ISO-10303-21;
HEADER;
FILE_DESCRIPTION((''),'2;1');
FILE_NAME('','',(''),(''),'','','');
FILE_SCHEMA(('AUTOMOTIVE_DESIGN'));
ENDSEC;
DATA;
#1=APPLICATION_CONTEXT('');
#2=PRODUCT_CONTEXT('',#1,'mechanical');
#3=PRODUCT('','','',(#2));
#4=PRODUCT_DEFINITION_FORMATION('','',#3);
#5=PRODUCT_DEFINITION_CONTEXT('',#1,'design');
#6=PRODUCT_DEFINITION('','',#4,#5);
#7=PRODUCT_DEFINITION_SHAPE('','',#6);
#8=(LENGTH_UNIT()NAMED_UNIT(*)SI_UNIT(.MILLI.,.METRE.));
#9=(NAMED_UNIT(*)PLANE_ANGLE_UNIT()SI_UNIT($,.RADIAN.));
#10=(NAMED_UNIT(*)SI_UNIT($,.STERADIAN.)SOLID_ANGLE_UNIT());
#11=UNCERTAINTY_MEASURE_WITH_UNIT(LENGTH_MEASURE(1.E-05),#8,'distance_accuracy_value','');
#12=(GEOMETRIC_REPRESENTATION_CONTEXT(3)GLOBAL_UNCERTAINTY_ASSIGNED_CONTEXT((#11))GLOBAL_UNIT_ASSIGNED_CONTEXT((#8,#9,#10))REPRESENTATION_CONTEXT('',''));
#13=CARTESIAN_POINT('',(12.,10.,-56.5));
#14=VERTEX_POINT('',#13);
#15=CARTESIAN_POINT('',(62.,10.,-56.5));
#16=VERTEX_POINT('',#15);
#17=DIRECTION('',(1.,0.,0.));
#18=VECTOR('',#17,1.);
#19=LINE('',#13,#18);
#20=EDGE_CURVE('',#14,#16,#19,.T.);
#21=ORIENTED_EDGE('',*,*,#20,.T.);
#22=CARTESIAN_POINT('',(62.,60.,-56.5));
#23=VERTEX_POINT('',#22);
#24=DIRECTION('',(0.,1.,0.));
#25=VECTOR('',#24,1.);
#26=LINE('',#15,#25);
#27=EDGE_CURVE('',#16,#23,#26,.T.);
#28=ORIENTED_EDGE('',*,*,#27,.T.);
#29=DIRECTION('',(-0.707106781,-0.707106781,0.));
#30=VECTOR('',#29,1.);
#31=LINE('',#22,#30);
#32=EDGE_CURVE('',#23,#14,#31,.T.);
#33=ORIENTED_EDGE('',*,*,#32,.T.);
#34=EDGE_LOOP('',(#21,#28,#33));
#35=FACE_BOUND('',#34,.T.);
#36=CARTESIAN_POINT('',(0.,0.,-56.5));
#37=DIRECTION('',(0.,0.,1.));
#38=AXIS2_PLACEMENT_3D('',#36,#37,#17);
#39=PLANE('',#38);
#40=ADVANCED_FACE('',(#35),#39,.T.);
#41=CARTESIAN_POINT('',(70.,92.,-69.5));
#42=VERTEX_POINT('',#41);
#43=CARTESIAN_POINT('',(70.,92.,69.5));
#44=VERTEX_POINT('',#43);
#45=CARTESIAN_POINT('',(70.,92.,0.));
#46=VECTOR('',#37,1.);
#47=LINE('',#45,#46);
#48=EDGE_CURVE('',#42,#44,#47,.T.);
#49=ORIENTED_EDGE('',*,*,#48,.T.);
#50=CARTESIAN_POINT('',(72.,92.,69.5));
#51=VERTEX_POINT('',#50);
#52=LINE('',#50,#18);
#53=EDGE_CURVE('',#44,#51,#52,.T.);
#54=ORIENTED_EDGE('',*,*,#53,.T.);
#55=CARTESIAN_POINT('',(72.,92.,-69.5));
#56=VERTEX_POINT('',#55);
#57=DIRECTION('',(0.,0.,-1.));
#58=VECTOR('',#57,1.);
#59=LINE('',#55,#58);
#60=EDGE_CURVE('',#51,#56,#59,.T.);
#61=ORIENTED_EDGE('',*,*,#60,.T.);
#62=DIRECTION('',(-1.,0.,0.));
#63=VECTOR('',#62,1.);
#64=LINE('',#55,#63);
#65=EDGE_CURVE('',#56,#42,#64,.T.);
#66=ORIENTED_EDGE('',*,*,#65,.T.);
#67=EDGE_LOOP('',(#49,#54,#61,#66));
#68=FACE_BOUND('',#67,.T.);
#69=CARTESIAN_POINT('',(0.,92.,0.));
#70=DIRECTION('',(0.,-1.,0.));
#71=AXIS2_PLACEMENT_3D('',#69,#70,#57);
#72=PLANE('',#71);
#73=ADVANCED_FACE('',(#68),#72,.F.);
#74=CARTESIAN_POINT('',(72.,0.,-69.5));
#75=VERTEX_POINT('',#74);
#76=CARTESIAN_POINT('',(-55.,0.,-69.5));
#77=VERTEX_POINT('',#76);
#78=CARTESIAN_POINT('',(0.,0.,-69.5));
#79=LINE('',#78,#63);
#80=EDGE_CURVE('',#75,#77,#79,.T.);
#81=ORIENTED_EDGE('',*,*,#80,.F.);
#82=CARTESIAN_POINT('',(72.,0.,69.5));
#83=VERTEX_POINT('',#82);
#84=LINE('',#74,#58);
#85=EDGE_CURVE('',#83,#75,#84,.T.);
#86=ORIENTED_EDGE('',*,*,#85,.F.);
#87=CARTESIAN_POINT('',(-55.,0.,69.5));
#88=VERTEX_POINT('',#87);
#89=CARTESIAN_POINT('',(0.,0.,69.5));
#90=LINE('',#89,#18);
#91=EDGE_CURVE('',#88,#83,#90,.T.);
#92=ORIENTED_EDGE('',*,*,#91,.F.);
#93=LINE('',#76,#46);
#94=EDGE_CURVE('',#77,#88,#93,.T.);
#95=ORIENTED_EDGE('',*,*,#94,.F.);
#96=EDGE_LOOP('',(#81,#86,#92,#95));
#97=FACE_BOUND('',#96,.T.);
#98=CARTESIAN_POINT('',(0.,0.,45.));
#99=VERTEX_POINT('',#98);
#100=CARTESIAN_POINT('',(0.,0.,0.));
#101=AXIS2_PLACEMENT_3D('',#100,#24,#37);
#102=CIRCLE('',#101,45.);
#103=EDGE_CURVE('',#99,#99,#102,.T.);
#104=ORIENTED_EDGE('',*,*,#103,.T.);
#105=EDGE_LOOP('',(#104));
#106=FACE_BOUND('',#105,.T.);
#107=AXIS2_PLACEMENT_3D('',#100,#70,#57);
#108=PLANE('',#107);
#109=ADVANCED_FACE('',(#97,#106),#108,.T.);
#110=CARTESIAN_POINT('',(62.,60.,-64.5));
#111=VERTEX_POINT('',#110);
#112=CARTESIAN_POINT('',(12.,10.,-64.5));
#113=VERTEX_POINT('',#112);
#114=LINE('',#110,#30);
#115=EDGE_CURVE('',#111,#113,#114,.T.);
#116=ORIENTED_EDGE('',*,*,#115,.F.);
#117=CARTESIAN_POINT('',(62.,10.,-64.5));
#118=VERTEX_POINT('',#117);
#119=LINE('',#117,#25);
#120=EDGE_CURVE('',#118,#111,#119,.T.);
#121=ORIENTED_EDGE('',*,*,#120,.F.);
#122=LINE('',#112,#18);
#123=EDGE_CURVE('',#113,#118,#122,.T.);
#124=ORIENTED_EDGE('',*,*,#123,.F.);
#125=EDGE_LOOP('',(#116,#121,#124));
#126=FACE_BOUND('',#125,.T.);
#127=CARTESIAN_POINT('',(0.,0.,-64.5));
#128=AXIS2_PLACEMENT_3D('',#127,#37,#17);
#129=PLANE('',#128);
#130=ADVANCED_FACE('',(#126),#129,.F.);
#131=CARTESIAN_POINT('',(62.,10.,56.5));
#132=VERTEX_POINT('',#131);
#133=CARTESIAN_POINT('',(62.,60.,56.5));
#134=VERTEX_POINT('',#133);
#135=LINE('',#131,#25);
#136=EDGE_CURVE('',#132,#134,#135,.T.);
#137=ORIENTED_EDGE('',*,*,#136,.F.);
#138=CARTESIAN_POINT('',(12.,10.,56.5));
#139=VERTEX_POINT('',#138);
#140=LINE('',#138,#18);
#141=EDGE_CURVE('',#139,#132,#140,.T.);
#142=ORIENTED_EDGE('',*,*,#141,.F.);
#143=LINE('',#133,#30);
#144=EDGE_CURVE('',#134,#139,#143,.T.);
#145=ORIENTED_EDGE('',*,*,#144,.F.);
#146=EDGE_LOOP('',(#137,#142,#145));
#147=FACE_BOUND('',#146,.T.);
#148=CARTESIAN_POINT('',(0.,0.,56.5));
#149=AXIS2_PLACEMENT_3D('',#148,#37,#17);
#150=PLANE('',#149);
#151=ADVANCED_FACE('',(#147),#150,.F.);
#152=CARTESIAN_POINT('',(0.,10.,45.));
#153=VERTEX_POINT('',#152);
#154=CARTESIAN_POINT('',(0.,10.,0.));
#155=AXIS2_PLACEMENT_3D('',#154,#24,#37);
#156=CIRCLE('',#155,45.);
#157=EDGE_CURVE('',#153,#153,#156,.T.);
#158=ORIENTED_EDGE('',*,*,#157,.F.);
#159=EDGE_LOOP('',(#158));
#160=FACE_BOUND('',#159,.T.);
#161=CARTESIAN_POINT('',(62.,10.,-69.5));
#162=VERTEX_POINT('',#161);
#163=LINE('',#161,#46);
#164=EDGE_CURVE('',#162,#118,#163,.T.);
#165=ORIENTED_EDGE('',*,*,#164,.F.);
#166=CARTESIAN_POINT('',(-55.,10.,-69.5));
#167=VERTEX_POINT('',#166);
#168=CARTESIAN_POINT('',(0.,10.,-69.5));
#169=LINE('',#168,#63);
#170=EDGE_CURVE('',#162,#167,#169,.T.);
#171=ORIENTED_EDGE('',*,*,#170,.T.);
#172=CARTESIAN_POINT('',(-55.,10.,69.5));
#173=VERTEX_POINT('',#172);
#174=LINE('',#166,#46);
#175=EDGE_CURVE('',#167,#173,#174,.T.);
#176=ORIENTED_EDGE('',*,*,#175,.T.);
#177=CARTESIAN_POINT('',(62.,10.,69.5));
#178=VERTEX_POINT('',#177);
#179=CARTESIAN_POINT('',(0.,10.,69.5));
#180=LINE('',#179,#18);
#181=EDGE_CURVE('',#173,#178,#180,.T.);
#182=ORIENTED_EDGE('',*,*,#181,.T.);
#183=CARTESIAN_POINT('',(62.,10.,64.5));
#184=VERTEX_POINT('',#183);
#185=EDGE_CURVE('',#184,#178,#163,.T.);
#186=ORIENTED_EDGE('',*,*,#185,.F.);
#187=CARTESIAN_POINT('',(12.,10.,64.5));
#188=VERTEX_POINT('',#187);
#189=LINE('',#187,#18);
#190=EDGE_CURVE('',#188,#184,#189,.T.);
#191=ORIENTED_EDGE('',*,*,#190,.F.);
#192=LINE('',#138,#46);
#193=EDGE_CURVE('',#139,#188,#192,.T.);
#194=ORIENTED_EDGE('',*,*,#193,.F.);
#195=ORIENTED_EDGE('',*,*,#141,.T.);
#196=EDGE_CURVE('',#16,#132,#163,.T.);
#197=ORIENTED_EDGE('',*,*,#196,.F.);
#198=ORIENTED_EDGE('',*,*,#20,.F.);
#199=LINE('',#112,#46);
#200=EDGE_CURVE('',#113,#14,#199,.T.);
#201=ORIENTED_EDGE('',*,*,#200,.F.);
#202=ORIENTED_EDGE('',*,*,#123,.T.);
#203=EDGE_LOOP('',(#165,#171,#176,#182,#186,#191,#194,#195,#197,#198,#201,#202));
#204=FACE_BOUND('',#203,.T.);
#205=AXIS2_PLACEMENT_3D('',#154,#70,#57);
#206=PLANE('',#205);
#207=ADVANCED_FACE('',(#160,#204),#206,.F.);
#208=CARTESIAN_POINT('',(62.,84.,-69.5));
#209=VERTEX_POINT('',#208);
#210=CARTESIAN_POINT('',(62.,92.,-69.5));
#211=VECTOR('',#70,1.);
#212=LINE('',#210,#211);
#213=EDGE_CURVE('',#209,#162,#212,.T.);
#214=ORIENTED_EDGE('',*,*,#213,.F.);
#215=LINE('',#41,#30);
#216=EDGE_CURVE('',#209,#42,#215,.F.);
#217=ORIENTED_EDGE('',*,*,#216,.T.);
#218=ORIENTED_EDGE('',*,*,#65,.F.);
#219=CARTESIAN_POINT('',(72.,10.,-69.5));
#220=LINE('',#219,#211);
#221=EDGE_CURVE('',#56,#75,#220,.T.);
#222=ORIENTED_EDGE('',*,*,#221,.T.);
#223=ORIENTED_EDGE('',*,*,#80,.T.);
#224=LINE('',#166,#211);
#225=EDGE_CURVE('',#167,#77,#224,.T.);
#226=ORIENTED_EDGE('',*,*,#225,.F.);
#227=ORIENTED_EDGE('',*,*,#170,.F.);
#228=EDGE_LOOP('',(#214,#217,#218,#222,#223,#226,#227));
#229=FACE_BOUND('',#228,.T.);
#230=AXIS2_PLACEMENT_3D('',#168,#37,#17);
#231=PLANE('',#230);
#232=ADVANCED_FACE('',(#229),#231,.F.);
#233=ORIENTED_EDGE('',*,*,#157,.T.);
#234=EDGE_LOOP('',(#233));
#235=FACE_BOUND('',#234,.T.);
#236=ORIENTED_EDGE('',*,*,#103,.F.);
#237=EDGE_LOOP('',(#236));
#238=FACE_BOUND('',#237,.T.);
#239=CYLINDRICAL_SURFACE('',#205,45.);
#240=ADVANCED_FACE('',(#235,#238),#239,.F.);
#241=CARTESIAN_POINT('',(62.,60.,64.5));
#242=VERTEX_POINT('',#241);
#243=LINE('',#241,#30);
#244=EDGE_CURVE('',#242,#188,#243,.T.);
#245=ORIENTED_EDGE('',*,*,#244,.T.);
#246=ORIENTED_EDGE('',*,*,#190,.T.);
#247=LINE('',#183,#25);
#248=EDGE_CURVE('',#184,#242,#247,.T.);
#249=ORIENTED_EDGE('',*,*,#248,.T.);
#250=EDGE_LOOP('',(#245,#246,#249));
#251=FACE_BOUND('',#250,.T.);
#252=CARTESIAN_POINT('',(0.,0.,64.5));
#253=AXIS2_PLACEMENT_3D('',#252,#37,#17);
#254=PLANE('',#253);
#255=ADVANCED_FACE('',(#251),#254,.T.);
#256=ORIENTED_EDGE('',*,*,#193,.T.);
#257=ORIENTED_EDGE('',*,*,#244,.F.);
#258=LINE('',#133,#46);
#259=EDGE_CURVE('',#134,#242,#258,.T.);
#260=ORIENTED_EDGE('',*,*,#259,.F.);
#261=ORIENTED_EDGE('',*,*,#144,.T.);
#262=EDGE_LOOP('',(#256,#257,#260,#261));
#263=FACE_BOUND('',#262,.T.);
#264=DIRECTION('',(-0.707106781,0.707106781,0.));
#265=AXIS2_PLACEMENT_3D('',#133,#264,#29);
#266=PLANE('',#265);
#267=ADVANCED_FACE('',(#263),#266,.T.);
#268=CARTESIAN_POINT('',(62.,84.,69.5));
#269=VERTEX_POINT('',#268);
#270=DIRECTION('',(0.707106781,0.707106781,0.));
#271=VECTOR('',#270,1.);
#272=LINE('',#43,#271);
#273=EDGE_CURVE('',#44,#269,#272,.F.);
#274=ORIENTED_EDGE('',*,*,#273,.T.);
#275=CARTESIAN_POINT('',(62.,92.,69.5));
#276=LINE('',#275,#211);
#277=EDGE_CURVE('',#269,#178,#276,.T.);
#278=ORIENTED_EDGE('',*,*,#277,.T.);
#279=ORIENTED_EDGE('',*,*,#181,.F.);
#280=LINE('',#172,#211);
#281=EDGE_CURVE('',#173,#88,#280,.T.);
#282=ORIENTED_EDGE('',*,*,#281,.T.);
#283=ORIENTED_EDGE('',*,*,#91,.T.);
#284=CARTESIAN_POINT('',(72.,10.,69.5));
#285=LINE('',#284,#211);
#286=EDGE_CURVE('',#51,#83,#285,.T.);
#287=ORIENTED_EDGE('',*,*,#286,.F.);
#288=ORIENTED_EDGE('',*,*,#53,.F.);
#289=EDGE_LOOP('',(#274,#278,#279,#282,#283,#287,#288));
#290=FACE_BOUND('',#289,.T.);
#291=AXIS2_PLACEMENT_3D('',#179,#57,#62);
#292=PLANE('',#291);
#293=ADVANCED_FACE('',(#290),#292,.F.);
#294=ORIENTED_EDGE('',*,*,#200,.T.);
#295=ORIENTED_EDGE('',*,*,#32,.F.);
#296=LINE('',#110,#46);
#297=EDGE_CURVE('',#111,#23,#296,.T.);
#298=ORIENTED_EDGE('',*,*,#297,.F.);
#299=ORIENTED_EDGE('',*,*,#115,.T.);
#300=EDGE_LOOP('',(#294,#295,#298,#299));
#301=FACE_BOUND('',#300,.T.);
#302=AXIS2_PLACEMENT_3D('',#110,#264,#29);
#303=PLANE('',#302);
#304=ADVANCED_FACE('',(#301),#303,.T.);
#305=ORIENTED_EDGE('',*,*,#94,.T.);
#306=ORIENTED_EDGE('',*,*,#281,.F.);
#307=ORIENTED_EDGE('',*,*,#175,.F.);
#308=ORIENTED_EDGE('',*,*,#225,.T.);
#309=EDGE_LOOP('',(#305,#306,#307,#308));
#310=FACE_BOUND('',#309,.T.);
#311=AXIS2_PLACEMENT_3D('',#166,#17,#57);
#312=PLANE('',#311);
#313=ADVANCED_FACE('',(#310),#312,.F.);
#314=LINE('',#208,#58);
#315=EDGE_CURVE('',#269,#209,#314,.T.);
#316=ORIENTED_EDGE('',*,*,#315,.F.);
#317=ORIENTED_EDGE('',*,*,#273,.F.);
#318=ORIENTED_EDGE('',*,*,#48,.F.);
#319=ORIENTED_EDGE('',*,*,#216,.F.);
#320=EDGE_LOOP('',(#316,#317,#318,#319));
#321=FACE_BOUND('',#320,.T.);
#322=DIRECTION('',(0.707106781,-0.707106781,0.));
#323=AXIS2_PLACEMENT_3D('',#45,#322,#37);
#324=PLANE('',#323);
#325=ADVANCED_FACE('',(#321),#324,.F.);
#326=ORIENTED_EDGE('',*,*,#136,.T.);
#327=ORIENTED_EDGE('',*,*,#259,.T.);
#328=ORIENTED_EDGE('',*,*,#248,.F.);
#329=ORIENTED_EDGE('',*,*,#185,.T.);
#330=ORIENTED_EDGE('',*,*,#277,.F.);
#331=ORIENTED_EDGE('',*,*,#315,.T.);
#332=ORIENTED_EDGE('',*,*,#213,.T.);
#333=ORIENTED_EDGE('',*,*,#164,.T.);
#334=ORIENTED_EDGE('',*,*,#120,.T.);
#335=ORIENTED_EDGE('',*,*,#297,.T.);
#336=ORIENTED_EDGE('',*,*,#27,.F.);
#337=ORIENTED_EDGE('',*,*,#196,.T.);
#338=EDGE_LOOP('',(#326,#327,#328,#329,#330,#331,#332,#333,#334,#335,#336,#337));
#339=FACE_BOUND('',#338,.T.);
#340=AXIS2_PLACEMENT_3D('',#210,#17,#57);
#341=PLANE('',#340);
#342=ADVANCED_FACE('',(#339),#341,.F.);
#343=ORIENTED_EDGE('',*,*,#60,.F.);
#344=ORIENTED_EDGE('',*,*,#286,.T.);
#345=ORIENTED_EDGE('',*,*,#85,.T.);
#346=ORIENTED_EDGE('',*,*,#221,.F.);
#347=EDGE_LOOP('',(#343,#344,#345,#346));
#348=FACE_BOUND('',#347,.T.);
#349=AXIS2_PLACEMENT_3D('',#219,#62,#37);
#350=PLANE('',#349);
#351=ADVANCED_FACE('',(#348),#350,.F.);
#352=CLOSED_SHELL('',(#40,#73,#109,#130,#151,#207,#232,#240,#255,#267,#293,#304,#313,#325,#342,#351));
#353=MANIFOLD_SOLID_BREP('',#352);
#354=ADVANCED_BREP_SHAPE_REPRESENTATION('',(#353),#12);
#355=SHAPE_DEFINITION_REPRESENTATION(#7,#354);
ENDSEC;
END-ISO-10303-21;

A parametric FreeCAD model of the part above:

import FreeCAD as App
import Part
import Sketcher

V = App.Vector


def edges_at(feature, points):
    """Names of the edges that pass closest to the given points."""
    edges = feature.Shape.Edges
    near = lambda p: min(range(len(edges)), key=lambda i: edges[i].distToShape(Part.Vertex(*p))[0])
    return sorted({f"Edge{near(p) + 1}" for p in points})

doc = App.newDocument("Part")
params = doc.addObject("Spreadsheet::Sheet", "Params")
for row, (alias, value) in enumerate([
    ("sketch1_diameter", "90 mm"),
    ("sketch1_width", "127 mm"),
    ("sketch1_height", "139 mm"),
    ("pad1_length", "10 mm"),
    ("sketch2_width", "10 mm"),
    ("sketch2_height", "139 mm"),
    ("pad2_length", "82 mm"),
    ("chamfer_size", "8 mm"),
    ("sketch3_width", "50 mm"),
    ("pad3_length", "8 mm"),
    ("linearpattern_pitch", "121 mm"),
], start=1):
    params.set(f"A{row}", alias)
    params.set(f"B{row}", "=" + value)
    params.setAlias(f"B{row}", alias)

body = doc.addObject("PartDesign::Body", "Body")

# Sketch on XZ plane
sketch1 = body.newObject("Sketcher::SketchObject", "Sketch")
sketch1.AttachmentSupport = (doc.getObject("XZ_Plane"), [""])
sketch1.MapMode = "FlatFace"
sketch1.addGeometry([
    Part.LineSegment(V(-55, -70, 0), V(-55, 70, 0)),  # 0
    Part.LineSegment(V(-55, 70, 0), V(72, 70, 0)),  # 1
    Part.LineSegment(V(72, 70, 0), V(72, -70, 0)),  # 2
    Part.LineSegment(V(72, -70, 0), V(-55, -70, 0)),  # 3
    Part.Circle(V(0, 0, 0), V(0, 0, 1), 45),  # 4
], False)
sketch1.addConstraint([
    Sketcher.Constraint("Coincident", 0, 2, 1, 1),
    Sketcher.Constraint("Coincident", 1, 2, 2, 1),
    Sketcher.Constraint("Coincident", 2, 2, 3, 1),
    Sketcher.Constraint("Coincident", 3, 2, 0, 1),
    Sketcher.Constraint("Vertical", 0),
    Sketcher.Constraint("Horizontal", 1),
    Sketcher.Constraint("Vertical", 2),
    Sketcher.Constraint("Horizontal", 3),
    Sketcher.Constraint("Coincident", 4, 3, -1, 1),
    Sketcher.Constraint("Diameter", 4, 90.0),
    Sketcher.Constraint("DistanceX", 1, 1, 1, 2, 127.0),
    Sketcher.Constraint("DistanceY", 0, 1, 0, 2, 139.0),
    Sketcher.Constraint("DistanceX", 0, 2, -1, 1, 55.0),
    Sketcher.Constraint("DistanceY", -1, 1, 0, 2, 69.5),
])
sketch1.setExpression("Constraints[9]", "Params.sketch1_diameter")
sketch1.setExpression("Constraints[10]", "Params.sketch1_width")
sketch1.setExpression("Constraints[11]", "Params.sketch1_height")
pad1 = body.newObject("PartDesign::Pad", "Pad")
pad1.Profile = sketch1
pad1.setExpression("Length", "Params.pad1_length")
pad1.Reversed = True

# Sketch on XZ plane
sketch2 = body.newObject("Sketcher::SketchObject", "Sketch001")
sketch2.AttachmentSupport = (doc.getObject("XZ_Plane"), [""])
sketch2.MapMode = "FlatFace"
sketch2.AttachmentOffset = App.Placement(V(0, 0, -10), App.Rotation())
sketch2.addGeometry([
    Part.LineSegment(V(62, -70, 0), V(62, 70, 0)),
    Part.LineSegment(V(62, 70, 0), V(72, 70, 0)),
    Part.LineSegment(V(72, 70, 0), V(72, -70, 0)),
    Part.LineSegment(V(72, -70, 0), V(62, -70, 0)),
], False)
sketch2.addConstraint([
    Sketcher.Constraint("Coincident", 0, 2, 1, 1),
    Sketcher.Constraint("Coincident", 1, 2, 2, 1),
    Sketcher.Constraint("Coincident", 2, 2, 3, 1),
    Sketcher.Constraint("Coincident", 3, 2, 0, 1),
    Sketcher.Constraint("Vertical", 0),
    Sketcher.Constraint("Horizontal", 1),
    Sketcher.Constraint("Vertical", 2),
    Sketcher.Constraint("Horizontal", 3),
    Sketcher.Constraint("DistanceX", 1, 1, 1, 2, 10.0),
    Sketcher.Constraint("DistanceY", 0, 1, 0, 2, 139.0),
    Sketcher.Constraint("DistanceX", -1, 1, 0, 2, 62.0),
    Sketcher.Constraint("DistanceY", -1, 1, 0, 2, 69.5),
])
sketch2.setExpression("Constraints[8]", "Params.sketch2_width")
sketch2.setExpression("Constraints[9]", "Params.sketch2_height")
pad2 = body.newObject("PartDesign::Pad", "Pad001")
pad2.Profile = sketch2
pad2.setExpression("Length", "Params.pad2_length")
pad2.Reversed = True
doc.recompute()

chamfer = body.newObject("PartDesign::Chamfer", "Chamfer")
chamfer.Base = (pad2, edges_at(pad2, [(62, 92, 0)]))
chamfer.setExpression("Size", "Params.chamfer_size")

# Sketch on XY plane
sketch3 = body.newObject("Sketcher::SketchObject", "Sketch002")
sketch3.AttachmentSupport = (doc.getObject("XY_Plane"), [""])
sketch3.MapMode = "FlatFace"
sketch3.AttachmentOffset = App.Placement(V(0, 0, 64.5), App.Rotation())
sketch3.addGeometry([
    Part.LineSegment(V(12, 10, 0), V(62, 10, 0)),
    Part.LineSegment(V(62, 10, 0), V(62, 60, 0)),
    Part.LineSegment(V(62, 60, 0), V(12, 10, 0)),
], False)
sketch3.addConstraint([
    Sketcher.Constraint("Coincident", 0, 2, 1, 1),
    Sketcher.Constraint("Coincident", 1, 2, 2, 1),
    Sketcher.Constraint("Coincident", 2, 2, 0, 1),
    Sketcher.Constraint("Horizontal", 0),
    Sketcher.Constraint("Vertical", 1),
    Sketcher.Constraint("Equal", 0, 1),
    Sketcher.Constraint("DistanceX", 0, 1, 0, 2, 50.0),
    Sketcher.Constraint("DistanceX", -1, 1, 0, 2, 62.0),
    Sketcher.Constraint("DistanceY", -1, 1, 0, 2, 10.0),
])
sketch3.setExpression("Constraints[6]", "Params.sketch3_width")
pad3 = body.newObject("PartDesign::Pad", "Pad002")
pad3.Profile = sketch3
pad3.setExpression("Length", "Params.pad3_length")
pad3.Reversed = True
doc.recompute()

linearpattern = body.newObject("PartDesign::LinearPattern", "LinearPattern")
linearpattern.Originals = [pad3]
linearpattern.Direction = (doc.getObject("Z_Axis"), [""])
linearpattern.Mode = "offset"
linearpattern.setExpression("Offset", "Params.linearpattern_pitch")
linearpattern.Occurrences = 2
linearpattern.Reversed = True
body.Tip = linearpattern

doc.recompute()
